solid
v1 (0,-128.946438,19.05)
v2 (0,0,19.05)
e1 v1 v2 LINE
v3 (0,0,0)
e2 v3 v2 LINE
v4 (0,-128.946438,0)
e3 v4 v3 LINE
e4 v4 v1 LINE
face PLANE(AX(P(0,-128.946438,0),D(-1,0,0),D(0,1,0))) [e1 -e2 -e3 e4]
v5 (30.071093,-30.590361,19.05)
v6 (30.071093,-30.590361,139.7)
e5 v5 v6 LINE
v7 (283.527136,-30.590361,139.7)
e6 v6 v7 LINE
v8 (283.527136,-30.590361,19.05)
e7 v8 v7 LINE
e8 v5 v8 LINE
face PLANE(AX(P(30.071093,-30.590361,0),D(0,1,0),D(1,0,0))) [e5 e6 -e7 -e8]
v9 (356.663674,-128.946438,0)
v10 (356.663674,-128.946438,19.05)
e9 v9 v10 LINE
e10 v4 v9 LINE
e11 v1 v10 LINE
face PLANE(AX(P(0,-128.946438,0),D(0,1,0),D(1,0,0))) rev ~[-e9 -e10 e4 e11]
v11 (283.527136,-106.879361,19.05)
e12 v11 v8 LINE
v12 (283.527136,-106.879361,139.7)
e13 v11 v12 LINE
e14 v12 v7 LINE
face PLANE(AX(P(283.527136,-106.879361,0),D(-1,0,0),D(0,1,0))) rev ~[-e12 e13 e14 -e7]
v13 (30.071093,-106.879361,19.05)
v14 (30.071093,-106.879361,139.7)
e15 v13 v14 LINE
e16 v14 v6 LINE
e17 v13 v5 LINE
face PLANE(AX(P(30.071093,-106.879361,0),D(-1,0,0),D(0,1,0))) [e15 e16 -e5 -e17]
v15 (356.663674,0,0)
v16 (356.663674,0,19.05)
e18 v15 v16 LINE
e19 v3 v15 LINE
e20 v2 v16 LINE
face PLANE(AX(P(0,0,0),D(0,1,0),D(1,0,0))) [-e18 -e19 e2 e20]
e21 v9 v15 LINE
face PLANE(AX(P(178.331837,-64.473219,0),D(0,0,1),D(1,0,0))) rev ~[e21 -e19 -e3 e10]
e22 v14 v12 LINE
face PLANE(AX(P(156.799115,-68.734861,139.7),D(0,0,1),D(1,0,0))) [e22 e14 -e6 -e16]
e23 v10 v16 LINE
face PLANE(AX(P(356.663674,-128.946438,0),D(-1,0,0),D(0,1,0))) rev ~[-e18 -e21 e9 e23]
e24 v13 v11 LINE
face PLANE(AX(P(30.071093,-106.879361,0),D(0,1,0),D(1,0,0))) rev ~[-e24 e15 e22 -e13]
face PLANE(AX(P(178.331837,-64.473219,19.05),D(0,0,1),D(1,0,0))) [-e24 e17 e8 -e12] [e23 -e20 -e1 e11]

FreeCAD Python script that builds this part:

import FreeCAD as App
import Part
import Sketcher

V = App.Vector


def add_polygon(sketch, points):
    """Adds a closed chain of lines whose ends are joined by coincident constraints."""
    first, n = sketch.GeometryCount, len(points)
    for a, b in zip(points, points[1:] + points[:1]):
        sketch.addGeometry(Part.LineSegment(App.Vector(*a, 0), App.Vector(*b, 0)), False)
    for i in range(n):
        sketch.addConstraint(Sketcher.Constraint("Coincident", first + i, 2, first + (i + 1) % n, 1))

doc = App.newDocument("Part")
params = doc.addObject("Spreadsheet::Sheet", "Params")
for row, (alias, value) in enumerate([
    ("pad1_length", "5.5 in"),
    ("pad2_length", "0.75 in"),
], start=1):
    params.set(f"A{row}", alias)
    params.set(f"B{row}", "=" + value)
    params.setAlias(f"B{row}", alias)

body = doc.addObject("PartDesign::Body", "Body")

# Sketch on XY plane
sketch1 = body.newObject("Sketcher::SketchObject", "Sketch")
sketch1.AttachmentSupport = (doc.getObject("XY_Plane"), [""])
sketch1.MapMode = "FlatFace"
add_polygon(sketch1, [(30.071093, -30.590361), (30.071093, -106.879361), (283.527136, -106.879361), (283.527136, -30.590361)])  # lines 0-3
sketch1.addConstraint([
    Sketcher.Constraint("Vertical", 0),
    Sketcher.Constraint("Horizontal", 1),
    Sketcher.Constraint("Vertical", 2),
    Sketcher.Constraint("Horizontal", 3),
    Sketcher.Constraint("DistanceY", 0, 2, 0, 1, 76.289),
    Sketcher.Constraint("DistanceX", 1, 1, 1, 2, 253.456043),
    Sketcher.Constraint("DistanceY", 0, 2, -1, 1, 106.879361),
    Sketcher.Constraint("DistanceX", -1, 1, 0, 2, 30.071093),
])
pad1 = body.newObject("PartDesign::Pad", "Pad")
pad1.Profile = sketch1
pad1.setExpression("Length", "Params.pad1_length")

# Sketch on XY plane
sketch2 = body.newObject("Sketcher::SketchObject", "Sketch001")
sketch2.AttachmentSupport = (doc.getObject("XY_Plane"), [""])
sketch2.MapMode = "FlatFace"
add_polygon(sketch2, [(0, 0), (0, -128.946438), (356.663674, -128.946438), (356.663674, 0)])  # lines 0-3
add_polygon(sketch2, [(283.527136, -106.879361), (30.071093, -106.879361), (30.071093, -30.590361), (283.527136, -30.590361)])  # lines 4-7
sketch2.addConstraint([
    Sketcher.Constraint("Vertical", 0),
    Sketcher.Constraint("Horizontal", 1),
    Sketcher.Constraint("Vertical", 2),
    Sketcher.Constraint("Horizontal", 3),
    Sketcher.Constraint("Horizontal", 4),
    Sketcher.Constraint("Vertical", 5),
    Sketcher.Constraint("Horizontal", 6),
    Sketcher.Constraint("Vertical", 7),
    Sketcher.Constraint("Coincident", 3, 2, -1, 1),
    Sketcher.Constraint("DistanceY", 5, 1, 5, 2, 76.289),
    Sketcher.Constraint("DistanceY", 0, 2, 0, 1, 128.946438),
    Sketcher.Constraint("DistanceX", 1, 1, 1, 2, 356.663674),
    Sketcher.Constraint("DistanceX", 4, 2, 4, 1, 253.456043),
    Sketcher.Constraint("DistanceY", 4, 2, -1, 1, 106.879361),
    Sketcher.Constraint("DistanceX", 4, 2, 1, 2, 326.59258),
])
pad2 = body.newObject("PartDesign::Pad", "Pad001")
pad2.Profile = sketch2
pad2.setExpression("Length", "Params.pad2_length")

doc.recompute()
